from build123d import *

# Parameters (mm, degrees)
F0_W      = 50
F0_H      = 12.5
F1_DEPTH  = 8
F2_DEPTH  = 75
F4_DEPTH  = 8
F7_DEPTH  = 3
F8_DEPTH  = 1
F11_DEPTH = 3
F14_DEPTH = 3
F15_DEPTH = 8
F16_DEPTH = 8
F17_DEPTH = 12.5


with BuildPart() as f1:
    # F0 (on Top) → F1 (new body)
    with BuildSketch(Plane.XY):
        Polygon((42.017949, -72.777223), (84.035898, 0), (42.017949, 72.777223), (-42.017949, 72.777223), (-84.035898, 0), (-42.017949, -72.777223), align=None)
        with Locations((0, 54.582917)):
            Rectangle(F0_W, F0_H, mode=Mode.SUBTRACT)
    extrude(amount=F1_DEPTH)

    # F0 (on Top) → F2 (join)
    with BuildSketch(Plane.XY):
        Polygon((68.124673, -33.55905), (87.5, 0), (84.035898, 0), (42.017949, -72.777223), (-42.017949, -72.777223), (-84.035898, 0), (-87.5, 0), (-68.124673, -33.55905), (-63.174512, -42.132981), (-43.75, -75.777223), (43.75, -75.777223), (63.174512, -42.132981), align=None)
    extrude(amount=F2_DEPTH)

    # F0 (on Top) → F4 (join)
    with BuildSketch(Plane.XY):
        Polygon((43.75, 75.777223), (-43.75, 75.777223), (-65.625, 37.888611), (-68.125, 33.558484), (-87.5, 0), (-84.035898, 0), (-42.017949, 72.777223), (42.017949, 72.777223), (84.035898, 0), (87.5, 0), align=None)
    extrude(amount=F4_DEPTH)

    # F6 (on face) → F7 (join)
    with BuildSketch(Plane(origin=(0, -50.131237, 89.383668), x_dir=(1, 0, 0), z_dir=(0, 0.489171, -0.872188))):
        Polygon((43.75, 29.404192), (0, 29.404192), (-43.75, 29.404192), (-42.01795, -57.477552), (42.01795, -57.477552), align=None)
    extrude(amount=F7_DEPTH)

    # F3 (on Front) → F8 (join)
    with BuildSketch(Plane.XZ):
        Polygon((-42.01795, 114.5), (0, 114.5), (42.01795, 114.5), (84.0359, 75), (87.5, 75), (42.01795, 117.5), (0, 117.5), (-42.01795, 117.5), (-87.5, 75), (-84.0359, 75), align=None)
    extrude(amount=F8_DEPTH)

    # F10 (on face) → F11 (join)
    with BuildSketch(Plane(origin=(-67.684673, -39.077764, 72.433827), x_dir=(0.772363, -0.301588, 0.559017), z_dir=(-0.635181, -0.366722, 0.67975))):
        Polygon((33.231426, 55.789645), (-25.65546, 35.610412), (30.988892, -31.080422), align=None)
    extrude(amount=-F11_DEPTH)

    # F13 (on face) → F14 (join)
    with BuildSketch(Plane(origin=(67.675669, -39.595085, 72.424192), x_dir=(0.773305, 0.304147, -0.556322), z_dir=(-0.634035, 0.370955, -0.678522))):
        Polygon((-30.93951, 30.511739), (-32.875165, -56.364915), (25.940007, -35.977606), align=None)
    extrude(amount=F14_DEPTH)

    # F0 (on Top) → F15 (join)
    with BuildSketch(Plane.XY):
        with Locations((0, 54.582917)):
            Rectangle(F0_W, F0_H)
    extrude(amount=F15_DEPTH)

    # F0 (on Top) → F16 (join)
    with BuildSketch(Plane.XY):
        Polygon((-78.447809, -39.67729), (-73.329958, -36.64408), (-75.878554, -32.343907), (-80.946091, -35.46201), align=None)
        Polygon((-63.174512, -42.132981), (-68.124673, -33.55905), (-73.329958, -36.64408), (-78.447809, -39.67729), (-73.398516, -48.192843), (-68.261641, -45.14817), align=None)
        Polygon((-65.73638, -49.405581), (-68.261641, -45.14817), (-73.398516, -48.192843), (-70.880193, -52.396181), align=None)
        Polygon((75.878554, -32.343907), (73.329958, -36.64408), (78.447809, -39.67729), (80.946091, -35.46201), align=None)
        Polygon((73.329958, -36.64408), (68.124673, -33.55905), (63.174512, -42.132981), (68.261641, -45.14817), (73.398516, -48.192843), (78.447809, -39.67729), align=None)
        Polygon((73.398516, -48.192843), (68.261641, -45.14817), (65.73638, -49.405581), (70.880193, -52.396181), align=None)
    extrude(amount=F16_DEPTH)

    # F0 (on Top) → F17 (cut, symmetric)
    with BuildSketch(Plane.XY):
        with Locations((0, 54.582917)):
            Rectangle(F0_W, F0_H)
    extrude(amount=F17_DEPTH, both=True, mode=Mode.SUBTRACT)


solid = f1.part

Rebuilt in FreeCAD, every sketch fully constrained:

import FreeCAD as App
import Part
import Sketcher
Q = App.Units.Quantity


def add_polygon(sketch, points):
    """Adds a closed chain of lines whose ends are joined by coincident constraints."""
    first, n = sketch.GeometryCount, len(points)
    for a, b in zip(points, points[1:] + points[:1]):
        sketch.addGeometry(Part.LineSegment(App.Vector(*a, 0), App.Vector(*b, 0)), False)
    for i in range(n):
        sketch.addConstraint(Sketcher.Constraint("Coincident", first + i, 2, first + (i + 1) % n, 1))

doc = App.newDocument("Part")
params = doc.addObject("Spreadsheet::Sheet", "Params")
for row, (alias, value) in enumerate([
    ("sketch1_width", "50 mm"),
    ("sketch1_height", "12.5 mm"),
    ("pad1_length", "8 mm"),
    ("sketch2_width", "87.5 mm"),
    ("pad2_length", "75 mm"),
    ("sketch3_length", "5 mm"),
    ("sketch3_width", "87.5 mm"),
    ("sketch3_length2", "87.5 mm"),
    ("sketch3_length3", "43.750001 mm"),
    ("pad3_length", "8 mm"),
    ("sketch4_width", "87.5 mm"),
    ("pad4_length", "3 mm"),
    ("pad5_length", "1 mm"),
    ("sketch6_length", "87.5 mm"),
    ("pad6_length", "3 mm"),
    ("pad7_length", "3 mm"),
    ("sketch8_width", "50 mm"),
    ("sketch8_height", "12.5 mm"),
    ("pad8_length", "8 mm"),
    ("sketch9_length", "4.9 mm"),
    ("sketch9_length2", "9.9 mm"),
    ("sketch9_length3", "5.95 mm"),
    ("sketch9_length4", "4.949999 mm"),
    ("pad9_length", "8 mm"),
    ("sketch10_width", "50 mm"),
    ("sketch10_height", "12.5 mm"),
    ("pocket1_length", "25 mm"),
], start=1):
    params.set(f"A{row}", alias)
    params.set(f"B{row}", "=" + value)
    params.setAlias(f"B{row}", alias)

body = doc.addObject("PartDesign::Body", "Body")

# Sketch on XY plane
sketch1 = body.newObject("Sketcher::SketchObject", "Sketch")
sketch1.AttachmentSupport = (doc.getObject("XY_Plane"), [""])
sketch1.MapMode = "FlatFace"
add_polygon(sketch1, [(42, -73), (84, 0), (42, 73), (-42, 73), (-84, 0), (-42, -73)])  # lines 0-5
add_polygon(sketch1, [(25, 48), (-25, 48), (-25, 61), (25, 61)])  # lines 6-9
sketch1.addConstraint(Sketcher.Constraint("Horizontal", 2))
sketch1.addConstraint(Sketcher.Constraint("Horizontal", 5))
sketch1.addConstraint(Sketcher.Constraint("Horizontal", 6))
sketch1.addConstraint(Sketcher.Constraint("Vertical", 7))
sketch1.addConstraint(Sketcher.Constraint("Horizontal", 8))
sketch1.addConstraint(Sketcher.Constraint("Vertical", 9))
sketch1.addConstraint(Sketcher.Constraint("Symmetric", 0, 2, 3, 2, -1, 1))
sketch1.addConstraint(Sketcher.Constraint("Symmetric", 1, 2, 4, 2, -1, 1))
sketch1.addConstraint(Sketcher.Constraint("PointOnObject", 0, 2, -1))
sketch1.addConstraint(Sketcher.Constraint("Parallel", 0, 3))
sketch1.addConstraint(Sketcher.Constraint("Vertical", 2, 2, 4, 2))
sketch1.addConstraint(Sketcher.Constraint("DistanceX", 6, 2, 6, 1, Q("50 mm")))
sketch1.addConstraint(Sketcher.Constraint("Angle", 0, Q("60 deg")))
sketch1.addConstraint(Sketcher.Constraint("DistanceY", 7, 1, 7, 2, Q("12.5 mm")))
sketch1.addConstraint(Sketcher.Constraint("DistanceX", 6, 2, -1, 1, Q("25 mm")))
sketch1.addConstraint(Sketcher.Constraint("DistanceX", 2, 2, 2, 1, Q("84.035898 mm")))
sketch1.addConstraint(Sketcher.Constraint("Distance", 0, Q("84.035898 mm")))
sketch1.addConstraint(Sketcher.Constraint("DistanceY", 4, 2, 6, 2, Q("121.11014 mm")))
sketch1.setExpression("Constraints[21]", "Params.sketch1_width")
sketch1.setExpression("Constraints[23]", "Params.sketch1_height")
pad1 = body.newObject("PartDesign::Pad", "Pad")
pad1.Profile = sketch1
pad1.setExpression("Length", "Params.pad1_length")

# Sketch on XY plane
sketch2 = body.newObject("Sketcher::SketchObject", "Sketch001")
sketch2.AttachmentSupport = (doc.getObject("XY_Plane"), [""])
sketch2.MapMode = "FlatFace"
add_polygon(sketch2, [(68.1, -33.6), (87.5, 0), (84, 0), (42, -72.8), (-42, -72.8), (-84, 0), (-87.5, 0), (-68.1, -33.6), (-63.2, -42.1), (-43.8, -75.8), (43.8, -75.8), (63.2, -42.1)])  # lines 0-11
sketch2.addConstraint(Sketcher.Constraint("Horizontal", 1))
sketch2.addConstraint(Sketcher.Constraint("Horizontal", 3))
sketch2.addConstraint(Sketcher.Constraint("Horizontal", 5))
sketch2.addConstraint(Sketcher.Constraint("Horizontal", 9))
sketch2.addConstraint(Sketcher.Constraint("Symmetric", 1, 2, 4, 2, -1, 1))
sketch2.addConstraint(Sketcher.Constraint("Symmetric", 0, 2, 5, 2, -2))
sketch2.addConstraint(Sketcher.Constraint("Symmetric", 7, 2, 10, 2, -2))
sketch2.addConstraint(Sketcher.Constraint("Symmetric", 6, 2, 11, 2, -2))
sketch2.addConstraint(Sketcher.Constraint("Parallel", 0, 2))
sketch2.addConstraint(Sketcher.Constraint("Parallel", 4, 6))
sketch2.addConstraint(Sketcher.Constraint("Parallel", 6, 7))
sketch2.addConstraint(Sketcher.Constraint("Parallel", 7, 8))
sketch2.addConstraint(Sketcher.Constraint("Parallel", 2, 10))
sketch2.addConstraint(Sketcher.Constraint("Angle", 0, Q("59.999999 deg")))
sketch2.addConstraint(Sketcher.Constraint("DistanceX", 9, 1, 9, 2, Q("87.5 mm")))
sketch2.addConstraint(Sketcher.Constraint("DistanceX", 5, 2, 0, 2, Q("175 mm")))
sketch2.addConstraint(Sketcher.Constraint("DistanceY", 8, 2, 3, 2, Q("3 mm")))
sketch2.addConstraint(Sketcher.Constraint("DistanceX", 1, 2, 1, 1, Q("3.464102 mm")))
sketch2.addConstraint(Sketcher.Constraint("DistanceY", 6, 2, -1, 1, Q("33.55905 mm")))
sketch2.addConstraint(Sketcher.Constraint("DistanceY", 7, 2, -1, 1, Q("42.132981 mm")))
sketch2.setExpression("Constraints[26]", "Params.sketch2_width")
pad2 = body.newObject("PartDesign::Pad", "Pad001")
pad2.Profile = sketch2
pad2.setExpression("Length", "Params.pad2_length")

# Sketch on XY plane
sketch3 = body.newObject("Sketcher::SketchObject", "Sketch002")
sketch3.AttachmentSupport = (doc.getObject("XY_Plane"), [""])
sketch3.MapMode = "FlatFace"
add_polygon(sketch3, [(43.8, 75.8), (-43.8, 75.8), (-65.6, 37.9), (-68.1, 33.6), (-87.5, 0), (-84, 0), (-42, 72.8), (42, 72.8), (84, 0), (87.5, 0)])  # lines 0-9
sketch3.addConstraint(Sketcher.Constraint("Horizontal", 0))
sketch3.addConstraint(Sketcher.Constraint("Horizontal", 4))
sketch3.addConstraint(Sketcher.Constraint("Horizontal", 6))
sketch3.addConstraint(Sketcher.Constraint("Horizontal", 8))
sketch3.addConstraint(Sketcher.Constraint("Symmetric", 4, 2, 7, 2, -1, 1))
sketch3.addConstraint(Sketcher.Constraint("Symmetric", 3, 2, 8, 2, -2))
sketch3.addConstraint(Sketcher.Constraint("Parallel", 1, 2))
sketch3.addConstraint(Sketcher.Constraint("Parallel", 2, 3))
sketch3.addConstraint(Sketcher.Constraint("Parallel", 3, 5))
sketch3.addConstraint(Sketcher.Constraint("Parallel", 7, 9))
sketch3.addConstraint(Sketcher.Constraint("Equal", 5, 7))
sketch3.addConstraint(Sketcher.Constraint("Angle", 1, Q("-120 deg")))
sketch3.addConstraint(Sketcher.Constraint("Distance", 2, Q("5 mm")))
sketch3.addConstraint(Sketcher.Constraint("DistanceX", 0, 2, 0, 1, Q("87.5 mm")))
sketch3.addConstraint(Sketcher.Constraint("DistanceY", 5, 2, 0, 2, Q("3 mm")))
sketch3.addConstraint(Sketcher.Constraint("Distance", 9, Q("87.5 mm")))
sketch3.addConstraint(Sketcher.Constraint("Distance", 1, Q("43.750001 mm")))
sketch3.addConstraint(Sketcher.Constraint("DistanceX", 4, 1, 4, 2, Q("3.464102 mm")))
sketch3.setExpression("Constraints[22]", "Params.sketch3_length")
sketch3.setExpression("Constraints[23]", "Params.sketch3_width")
sketch3.setExpression("Constraints[25]", "Params.sketch3_length2")
sketch3.setExpression("Constraints[26]", "Params.sketch3_length3")
pad3 = body.newObject("PartDesign::Pad", "Pad002")
pad3.Profile = sketch3
pad3.setExpression("Length", "Params.pad3_length")

# Sketch on an angled plane
sketch4 = body.newObject("Sketcher::SketchObject", "Sketch003")
sketch4.Placement = App.Placement(App.Vector(0, -50.131237, 89.383668), App.Rotation(App.Vector(1, 0, 0), App.Vector(0, -0.872187924, -0.489170957), App.Vector(0, 0.489170957, -0.872187924), "ZXY"))
add_polygon(sketch4, [(44, 29), (-44, 29), (-42, -57), (42, -57)])  # lines 0-3
sketch4.addConstraint(Sketcher.Constraint("Horizontal", 0))
sketch4.addConstraint(Sketcher.Constraint("Horizontal", 2))
sketch4.addConstraint(Sketcher.Constraint("Equal", 1, 3))
sketch4.addConstraint(Sketcher.Constraint("DistanceX", 0, 2, 0, 1, Q("87.5 mm")))
sketch4.addConstraint(Sketcher.Constraint("DistanceX", 0, 2, -1, 1, Q("43.75 mm")))
sketch4.addConstraint(Sketcher.Constraint("DistanceX", 2, 1, 2, 2, Q("84.0359 mm")))
sketch4.addConstraint(Sketcher.Constraint("DistanceY", -1, 1, 0, 2, Q("29.404192 mm")))
sketch4.addConstraint(Sketcher.Constraint("DistanceY", 1, 2, -1, 1, Q("57.477552 mm")))
sketch4.setExpression("Constraints[7]", "Params.sketch4_width")
pad4 = body.newObject("PartDesign::Pad", "Pad003")
pad4.Profile = sketch4
pad4.setExpression("Length", "Params.pad4_length")

# Sketch on XZ plane
sketch5 = body.newObject("Sketcher::SketchObject", "Sketch004")
sketch5.AttachmentSupport = (doc.getObject("XZ_Plane"), [""])
sketch5.MapMode = "FlatFace"
add_polygon(sketch5, [(-42, 114.5), (42, 114.5), (84, 75), (87.5, 75), (42, 117.5), (-42, 117.5), (-87.5, 75), (-84, 75)])  # lines 0-7
sketch5.addConstraint(Sketcher.Constraint("Horizontal", 0))
sketch5.addConstraint(Sketcher.Constraint("Horizontal", 2))
sketch5.addConstraint(Sketcher.Constraint("Horizontal", 4))
sketch5.addConstraint(Sketcher.Constraint("Horizontal", 6))
sketch5.addConstraint(Sketcher.Constraint("Symmetric", 2, 2, 5, 2, -2))
sketch5.addConstraint(Sketcher.Constraint("Vertical", 0, 2, 3, 2))
sketch5.addConstraint(Sketcher.Constraint("Vertical", 4, 2, 7, 2))
sketch5.addConstraint(Sketcher.Constraint("Equal", 2, 6))
sketch5.addConstraint(Sketcher.Constraint("Equal", 3, 5))
sketch5.addConstraint(Sketcher.Constraint("DistanceY", -1, 1, 1, 2, Q("75 mm")))
sketch5.addConstraint(Sketcher.Constraint("DistanceY", 0, 2, 3, 2, Q("3 mm")))
sketch5.addConstraint(Sketcher.Constraint("DistanceX", 5, 2, 2, 2, Q("175 mm")))
sketch5.addConstraint(Sketcher.Constraint("DistanceY", -1, 1, 0, 2, Q("114.5 mm")))
sketch5.addConstraint(Sketcher.Constraint("DistanceX", 0, 1, 0, 2, Q("84.0359 mm")))
sketch5.addConstraint(Sketcher.Constraint("DistanceX", 2, 1, 2, 2, Q("3.4641 mm")))
pad5 = body.newObject("PartDesign::Pad", "Pad004")
pad5.Profile = sketch5
pad5.setExpression("Length", "Params.pad5_length")

# Sketch on an angled plane
sketch6 = body.newObject("Sketcher::SketchObject", "Sketch005")
sketch6.Placement = App.Placement(App.Vector(-67.684673, -39.077764, 72.433827), App.Rotation(App.Vector(0.772363317, -0.301587842, 0.559016708), App.Vector(0.00000061, 0.88009076, 0.47480549), App.Vector(-0.635181003, -0.366722002, 0.679750003), "ZXY"))
add_polygon(sketch6, [(33, 56), (-26, 36), (31, -31)])  # lines 0-2
sketch6.addConstraint(Sketcher.Constraint("Distance", 1, Q("87.5 mm")))
sketch6.addConstraint(Sketcher.Constraint("DistanceX", 0, 2, -1, 1, Q("25.65546 mm")))
sketch6.addConstraint(Sketcher.Constraint("DistanceY", -1, 1, 0, 2, Q("35.610412 mm")))
sketch6.addConstraint(Sketcher.Constraint("DistanceX", -1, 1, 1, 2, Q("30.988892 mm")))
sketch6.addConstraint(Sketcher.Constraint("Distance", 0, Q("62.248428 mm")))
sketch6.addConstraint(Sketcher.Constraint("Distance", 2, Q("86.899007 mm")))
sketch6.setExpression("Constraints[3]", "Params.sketch6_length")
pad6 = body.newObject("PartDesign::Pad", "Pad005")
pad6.Profile = sketch6
pad6.setExpression("Length", "Params.pad6_length")
pad6.Reversed = True

# Sketch on an angled plane
sketch7 = body.newObject("Sketcher::SketchObject", "Sketch006")
sketch7.Placement = App.Placement(App.Vector(67.675669, -39.595085, 72.424192), App.Rotation(App.Vector(0.773304376, 0.304147294, -0.556322537), App.Vector(0.000000003, -0.877431949, -0.479701131), App.Vector(-0.634034969, 0.370954982, -0.678521967), "ZXY"))
add_polygon(sketch7, [(-31, 31), (-33, -56), (26, -36)])  # lines 0-2
sketch7.addConstraint(Sketcher.Constraint("Distance", 1, Q("62.248428 mm")))
sketch7.addConstraint(Sketcher.Constraint("DistanceX", 2, 2, -1, 1, Q("30.93951 mm")))
sketch7.addConstraint(Sketcher.Constraint("DistanceY", -1, 1, 2, 2, Q("30.511739 mm")))
sketch7.addConstraint(Sketcher.Constraint("DistanceX", 0, 2, 1, 2, Q("58.815172 mm")))
sketch7.addConstraint(Sketcher.Constraint("Distance", 0, Q("86.898215 mm")))
sketch7.addConstraint(Sketcher.Constraint("Distance", 2, Q("87.499214 mm")))
pad7 = body.newObject("PartDesign::Pad", "Pad006")
pad7.Profile = sketch7
pad7.setExpression("Length", "Params.pad7_length")

# Sketch on XY plane
sketch8 = body.newObject("Sketcher::SketchObject", "Sketch007")
sketch8.AttachmentSupport = (doc.getObject("XY_Plane"), [""])
sketch8.MapMode = "FlatFace"
add_polygon(sketch8, [(-25, 61), (-25, 48), (25, 48), (25, 61)])  # lines 0-3
sketch8.addConstraint(Sketcher.Constraint("Vertical", 0))
sketch8.addConstraint(Sketcher.Constraint("Horizontal", 1))
sketch8.addConstraint(Sketcher.Constraint("Vertical", 2))
sketch8.addConstraint(Sketcher.Constraint("Horizontal", 3))
sketch8.addConstraint(Sketcher.Constraint("DistanceX", 1, 1, 1, 2, Q("50 mm")))
sketch8.addConstraint(Sketcher.Constraint("DistanceY", 0, 2, 0, 1, Q("12.5 mm")))
sketch8.addConstraint(Sketcher.Constraint("DistanceX", 0, 2, -1, 1, Q("25 mm")))
sketch8.addConstraint(Sketcher.Constraint("DistanceY", -1, 1, 0, 2, Q("48.332917 mm")))
sketch8.setExpression("Constraints[8]", "Params.sketch8_width")
sketch8.setExpression("Constraints[9]", "Params.sketch8_height")
pad8 = body.newObject("PartDesign::Pad", "Pad007")
pad8.Profile = sketch8
pad8.setExpression("Length", "Params.pad8_length")

# Sketch on XY plane
sketch9 = body.newObject("Sketcher::SketchObject", "Sketch008")
sketch9.AttachmentSupport = (doc.getObject("XY_Plane"), [""])
sketch9.MapMode = "FlatFace"
add_polygon(sketch9, [(-73.329958, -36.64408), (-75.878554, -32.343907), (-80.946091, -35.46201), (-78.447809, -39.67729), (-73.398516, -48.192843), (-70.880193, -52.396181), (-65.73638, -49.405581), (-68.261641, -45.14817), (-63.174512, -42.132981), (-68.124673, -33.55905)])  # lines 0-9
add_polygon(sketch9, [(75.878554, -32.343907), (73.329958, -36.64408), (68.124673, -33.55905), (63.174512, -42.132981), (68.261641, -45.14817), (65.73638, -49.405581), (70.880193, -52.396181), (73.398516, -48.192843), (78.447809, -39.67729), (80.946091, -35.46201)])  # lines 10-19
sketch9.addConstraint(Sketcher.Constraint("Symmetric", 9, 2, 10, 2, -2))
sketch9.addConstraint(Sketcher.Constraint("Symmetric", 8, 2, 11, 2, -2))
sketch9.addConstraint(Sketcher.Constraint("Symmetric", 7, 2, 12, 2, -2))
sketch9.addConstraint(Sketcher.Constraint("Symmetric", 6, 2, 13, 2, -2))
sketch9.addConstraint(Sketcher.Constraint("Symmetric", 5, 2, 14, 2, -2))
sketch9.addConstraint(Sketcher.Constraint("Symmetric", 4, 2, 15, 2, -2))
sketch9.addConstraint(Sketcher.Constraint("Symmetric", 3, 2, 16, 2, -2))
sketch9.addConstraint(Sketcher.Constraint("Symmetric", 2, 2, 17, 2, -2))
sketch9.addConstraint(Sketcher.Constraint("Symmetric", 1, 2, 18, 2, -2))
sketch9.addConstraint(Sketcher.Constraint("Symmetric", 0, 2, 19, 2, -2))
sketch9.addConstraint(Sketcher.Constraint("Parallel", 0, 2))
sketch9.addConstraint(Sketcher.Constraint("Perpendicular", 2, 9))
sketch9.addConstraint(Sketcher.Constraint("Equal", 2, 4))
sketch9.addConstraint(Sketcher.Constraint("Equal", 1, 5))
sketch9.addConstraint(Sketcher.Constraint("Angle", 8, Q("119.999998 deg")))
sketch9.addConstraint(Sketcher.Constraint("Distance", 2, Q("4.9 mm")))
sketch9.addConstraint(Sketcher.Constraint("Distance", 3, Q("9.9 mm")))
sketch9.addConstraint(Sketcher.Constraint("Distance", 1, Q("5.95 mm")))
sketch9.addConstraint(Sketcher.Constraint("Distance", 6, Q("4.949999 mm")))
sketch9.addConstraint(Sketcher.Constraint("DistanceY", 4, 2, 5, 2, Q("2.9906 mm")))
sketch9.addConstraint(Sketcher.Constraint("DistanceY", 5, 2, 7, 2, Q("7.2726 mm")))
sketch9.addConstraint(Sketcher.Constraint("DistanceY", 7, 2, 10, 2, Q("5.488901 mm")))
sketch9.addConstraint(Sketcher.Constraint("DistanceX", 6, 2, 10, 2, Q("141.591599 mm")))
sketch9.addConstraint(Sketcher.Constraint("Distance", 9, Q("6.050818 mm")))
sketch9.addConstraint(Sketcher.Constraint("DistanceX", 1, 2, -1, 1, Q("80.946091 mm")))
sketch9.addConstraint(Sketcher.Constraint("DistanceY", 1, 2, -1, 1, Q("35.46201 mm")))
sketch9.addConstraint(Sketcher.Constraint("DistanceX", 2, 2, -1, 1, Q("78.447809 mm")))
sketch9.addConstraint(Sketcher.Constraint("DistanceY", 4, 2, -1, 1, Q("52.396181 mm")))
sketch9.addConstraint(Sketcher.Constraint("DistanceX", 5, 2, -1, 1, Q("65.73638 mm")))
sketch9.addConstraint(Sketcher.Constraint("DistanceX", 6, 2, -1, 1, Q("68.261641 mm")))
sketch9.setExpression("Constraints[35]", "Params.sketch9_length")
sketch9.setExpression("Constraints[36]", "Params.sketch9_length2")
sketch9.setExpression("Constraints[37]", "Params.sketch9_length3")
sketch9.setExpression("Constraints[38]", "Params.sketch9_length4")
pad9 = body.newObject("PartDesign::Pad", "Pad008")
pad9.Profile = sketch9
pad9.setExpression("Length", "Params.pad9_length")

# Sketch on XY plane
sketch10 = body.newObject("Sketcher::SketchObject", "Sketch009")
sketch10.AttachmentSupport = (doc.getObject("XY_Plane"), [""])
sketch10.MapMode = "FlatFace"
add_polygon(sketch10, [(-25, 61), (-25, 48), (25, 48), (25, 61)])  # lines 0-3
sketch10.addConstraint(Sketcher.Constraint("Vertical", 0))
sketch10.addConstraint(Sketcher.Constraint("Horizontal", 1))
sketch10.addConstraint(Sketcher.Constraint("Vertical", 2))
sketch10.addConstraint(Sketcher.Constraint("Horizontal", 3))
sketch10.addConstraint(Sketcher.Constraint("DistanceX", 1, 1, 1, 2, Q("50 mm")))
sketch10.addConstraint(Sketcher.Constraint("DistanceY", 0, 2, 0, 1, Q("12.5 mm")))
sketch10.addConstraint(Sketcher.Constraint("DistanceX", 0, 2, -1, 1, Q("25 mm")))
sketch10.addConstraint(Sketcher.Constraint("DistanceY", -1, 1, 0, 2, Q("48.332917 mm")))
sketch10.setExpression("Constraints[8]", "Params.sketch10_width")
sketch10.setExpression("Constraints[9]", "Params.sketch10_height")
pocket1 = body.newObject("PartDesign::Pocket", "Pocket")
pocket1.Profile = sketch10
pocket1.setExpression("Length", "Params.pocket1_length")
pocket1.Midplane = True

doc.recompute()
